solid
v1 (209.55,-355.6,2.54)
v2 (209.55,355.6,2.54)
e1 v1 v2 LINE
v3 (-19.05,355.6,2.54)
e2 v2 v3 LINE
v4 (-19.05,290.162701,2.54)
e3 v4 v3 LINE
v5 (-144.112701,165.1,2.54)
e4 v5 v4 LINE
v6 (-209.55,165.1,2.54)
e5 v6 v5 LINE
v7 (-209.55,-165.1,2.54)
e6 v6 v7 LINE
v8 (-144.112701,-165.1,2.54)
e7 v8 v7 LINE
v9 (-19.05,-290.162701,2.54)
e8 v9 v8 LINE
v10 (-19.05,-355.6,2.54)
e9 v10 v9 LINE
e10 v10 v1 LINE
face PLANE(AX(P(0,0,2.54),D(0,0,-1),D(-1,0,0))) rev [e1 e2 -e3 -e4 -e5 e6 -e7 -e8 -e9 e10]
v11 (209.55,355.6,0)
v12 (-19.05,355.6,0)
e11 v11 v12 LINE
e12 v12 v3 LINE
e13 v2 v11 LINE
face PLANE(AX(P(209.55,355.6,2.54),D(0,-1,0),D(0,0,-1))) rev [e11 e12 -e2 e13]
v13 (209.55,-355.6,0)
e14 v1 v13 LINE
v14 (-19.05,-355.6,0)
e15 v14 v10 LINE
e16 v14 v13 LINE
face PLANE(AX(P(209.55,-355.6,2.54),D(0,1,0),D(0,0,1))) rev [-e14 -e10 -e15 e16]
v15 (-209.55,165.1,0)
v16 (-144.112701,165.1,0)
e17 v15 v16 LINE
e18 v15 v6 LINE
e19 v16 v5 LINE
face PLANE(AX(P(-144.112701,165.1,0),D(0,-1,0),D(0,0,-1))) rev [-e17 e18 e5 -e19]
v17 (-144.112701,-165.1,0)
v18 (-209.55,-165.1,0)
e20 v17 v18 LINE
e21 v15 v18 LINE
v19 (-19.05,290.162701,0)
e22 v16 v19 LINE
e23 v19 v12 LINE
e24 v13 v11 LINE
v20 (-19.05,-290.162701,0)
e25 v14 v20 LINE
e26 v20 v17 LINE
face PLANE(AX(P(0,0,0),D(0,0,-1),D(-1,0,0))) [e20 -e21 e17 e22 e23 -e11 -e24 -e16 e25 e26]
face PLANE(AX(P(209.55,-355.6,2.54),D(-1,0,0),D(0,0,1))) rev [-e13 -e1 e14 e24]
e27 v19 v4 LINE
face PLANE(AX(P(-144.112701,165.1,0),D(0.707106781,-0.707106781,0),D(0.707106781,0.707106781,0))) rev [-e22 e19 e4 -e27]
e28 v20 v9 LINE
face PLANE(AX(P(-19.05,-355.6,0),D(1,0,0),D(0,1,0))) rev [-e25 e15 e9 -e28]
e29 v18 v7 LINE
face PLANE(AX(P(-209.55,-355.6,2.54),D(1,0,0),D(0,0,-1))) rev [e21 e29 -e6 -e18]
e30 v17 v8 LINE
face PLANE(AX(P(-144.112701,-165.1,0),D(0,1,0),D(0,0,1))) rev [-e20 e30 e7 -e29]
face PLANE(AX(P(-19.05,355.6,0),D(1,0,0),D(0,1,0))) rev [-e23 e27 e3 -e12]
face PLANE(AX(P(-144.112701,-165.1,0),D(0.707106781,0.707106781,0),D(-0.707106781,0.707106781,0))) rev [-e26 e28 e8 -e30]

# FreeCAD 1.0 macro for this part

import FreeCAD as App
import Part
import Sketcher
Q = App.Units.Quantity


def add_polygon(sketch, points):
    """Adds a closed chain of lines whose ends are joined by coincident constraints."""
    first, n = sketch.GeometryCount, len(points)
    for a, b in zip(points, points[1:] + points[:1]):
        sketch.addGeometry(Part.LineSegment(App.Vector(*a, 0), App.Vector(*b, 0)), False)
    for i in range(n):
        sketch.addConstraint(Sketcher.Constraint("Coincident", first + i, 2, first + (i + 1) % n, 1))

doc = App.newDocument("Part")
body = doc.addObject("PartDesign::Body", "Body")

# Sketch on XY plane
sketch1 = body.newObject("Sketcher::SketchObject", "Sketch")
sketch1.AttachmentSupport = (doc.getObject("XY_Plane"), [""])
sketch1.MapMode = "FlatFace"
add_polygon(sketch1, [(-210, -356), (210, -356), (210, 356), (-210, 356)])  # lines 0-3
sketch1.addConstraint(Sketcher.Constraint("Horizontal", 0))
sketch1.addConstraint(Sketcher.Constraint("Vertical", 1))
sketch1.addConstraint(Sketcher.Constraint("Horizontal", 2))
sketch1.addConstraint(Sketcher.Constraint("Vertical", 3))
sketch1.addConstraint(Sketcher.Constraint("Symmetric", 0, 2, 2, 2, -1, 1))
sketch1.addConstraint(Sketcher.Constraint("DistanceY", 1, 1, 1, 2, Q("28 in")))
sketch1.addConstraint(Sketcher.Constraint("DistanceX", 0, 1, 0, 2, Q("16.5 in")))
pad1 = body.newObject("PartDesign::Pad", "Pad")
pad1.Profile = sketch1
pad1.Length = Q("0.1 in")

# Sketch on XY plane
sketch2 = body.newObject("Sketcher::SketchObject", "Sketch001")
sketch2.AttachmentSupport = (doc.getObject("XY_Plane"), [""])
sketch2.MapMode = "FlatFace"
sketch2.AttachmentOffset = App.Placement(App.Vector(0, 0, 0.1 * 25.4), App.Rotation())
add_polygon(sketch2, [(-144, 165), (-19, 290), (-19, 356), (-210, 356), (-210, 165)])  # lines 0-4
add_polygon(sketch2, [(-210, -356), (-19, -356), (-19, -290), (-144, -165), (-210, -165)])  # lines 5-9
sketch2.addConstraint(Sketcher.Constraint("Vertical", 1))
sketch2.addConstraint(Sketcher.Constraint("Horizontal", 2))
sketch2.addConstraint(Sketcher.Constraint("Vertical", 3))
sketch2.addConstraint(Sketcher.Constraint("Horizontal", 4))
sketch2.addConstraint(Sketcher.Constraint("Horizontal", 5))
sketch2.addConstraint(Sketcher.Constraint("Vertical", 6))
sketch2.addConstraint(Sketcher.Constraint("Horizontal", 8))
sketch2.addConstraint(Sketcher.Constraint("Vertical", 9))
sketch2.addConstraint(Sketcher.Constraint("Symmetric", 1, 2, 5, 2, -1))
sketch2.addConstraint(Sketcher.Constraint("Symmetric", 4, 2, 7, 2, -1))
sketch2.addConstraint(Sketcher.Constraint("Perpendicular", 0, 7))
sketch2.addConstraint(Sketcher.Constraint("Vertical", 3, 2, 8, 2))
sketch2.addConstraint(Sketcher.Constraint("Equal", 8, 1))
sketch2.addConstraint(Sketcher.Constraint("Equal", 5, 3))
sketch2.addConstraint(Sketcher.Constraint("DistanceX", 2, 2, 2, 1, Q("7.5 in")))
sketch2.addConstraint(Sketcher.Constraint("DistanceY", -1, 1, 1, 2, Q("14 in")))
sketch2.addConstraint(Sketcher.Constraint("DistanceX", 0, 2, -1, 1, Q("0.75 in")))
sketch2.addConstraint(Sketcher.Constraint("DistanceX", 4, 1, 4, 2, 65.437299))
pocket1 = body.newObject("PartDesign::Pocket", "Pocket")
pocket1.Profile = sketch2
pocket1.Type = "ThroughAll"

doc.recompute()
